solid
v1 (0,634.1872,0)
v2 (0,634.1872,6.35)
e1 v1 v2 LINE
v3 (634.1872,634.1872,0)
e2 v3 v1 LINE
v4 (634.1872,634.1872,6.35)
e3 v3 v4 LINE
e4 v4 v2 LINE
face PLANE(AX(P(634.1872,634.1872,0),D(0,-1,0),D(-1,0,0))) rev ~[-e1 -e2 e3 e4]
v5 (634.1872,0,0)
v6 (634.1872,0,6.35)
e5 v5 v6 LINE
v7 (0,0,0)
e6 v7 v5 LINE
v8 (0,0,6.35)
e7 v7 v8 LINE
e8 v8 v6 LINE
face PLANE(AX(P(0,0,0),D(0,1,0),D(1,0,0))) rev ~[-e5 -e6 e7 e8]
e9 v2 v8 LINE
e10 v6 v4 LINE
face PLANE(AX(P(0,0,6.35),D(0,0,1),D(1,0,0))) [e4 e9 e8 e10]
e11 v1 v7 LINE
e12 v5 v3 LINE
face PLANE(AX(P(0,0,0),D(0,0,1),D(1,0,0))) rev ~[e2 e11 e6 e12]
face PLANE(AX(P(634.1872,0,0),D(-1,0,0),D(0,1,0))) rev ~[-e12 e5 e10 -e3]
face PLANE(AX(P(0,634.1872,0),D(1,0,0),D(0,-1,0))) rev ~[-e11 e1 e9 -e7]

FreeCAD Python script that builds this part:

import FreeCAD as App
import Part
import Sketcher
from FreeCAD import Vector
Q = App.Units.Quantity


def add_polygon(sketch, points):
    """Adds a closed chain of lines whose ends are joined by coincident constraints."""
    first, n = sketch.GeometryCount, len(points)
    for a, b in zip(points, points[1:] + points[:1]):
        sketch.addGeometry(Part.LineSegment(App.Vector(*a, 0), App.Vector(*b, 0)), False)
    for i in range(n):
        sketch.addConstraint(Sketcher.Constraint("Coincident", first + i, 2, first + (i + 1) % n, 1))

doc = App.newDocument("Part")
body = doc.addObject("PartDesign::Body", "Body")

sketch1 = body.newObject("Sketcher::SketchObject", "Sketch")
sketch1.AttachmentSupport = (doc.getObject("XY_Plane"), [""])
sketch1.MapMode = "FlatFace"
add_polygon(sketch1, [(0, 634), (0, 0), (634, 0), (634, 634)])
sketch1.addConstraint(Sketcher.Constraint("Vertical", 0))
sketch1.addConstraint(Sketcher.Constraint("Horizontal", 1))
sketch1.addConstraint(Sketcher.Constraint("Vertical", 2))
sketch1.addConstraint(Sketcher.Constraint("Horizontal", 3))
sketch1.addConstraint(Sketcher.Constraint("Coincident", 0, 2, -1, 1))
sketch1.addConstraint(Sketcher.Constraint("Equal", 3, 0))
sketch1.addConstraint(Sketcher.Constraint("DistanceX", 1, 1, 1, 2, Q("24.968 in")))
pad1 = body.newObject("PartDesign::Pad", "Pad")
pad1.Profile = sketch1
pad1.Length = Q("0.25 in")

doc.recompute()
